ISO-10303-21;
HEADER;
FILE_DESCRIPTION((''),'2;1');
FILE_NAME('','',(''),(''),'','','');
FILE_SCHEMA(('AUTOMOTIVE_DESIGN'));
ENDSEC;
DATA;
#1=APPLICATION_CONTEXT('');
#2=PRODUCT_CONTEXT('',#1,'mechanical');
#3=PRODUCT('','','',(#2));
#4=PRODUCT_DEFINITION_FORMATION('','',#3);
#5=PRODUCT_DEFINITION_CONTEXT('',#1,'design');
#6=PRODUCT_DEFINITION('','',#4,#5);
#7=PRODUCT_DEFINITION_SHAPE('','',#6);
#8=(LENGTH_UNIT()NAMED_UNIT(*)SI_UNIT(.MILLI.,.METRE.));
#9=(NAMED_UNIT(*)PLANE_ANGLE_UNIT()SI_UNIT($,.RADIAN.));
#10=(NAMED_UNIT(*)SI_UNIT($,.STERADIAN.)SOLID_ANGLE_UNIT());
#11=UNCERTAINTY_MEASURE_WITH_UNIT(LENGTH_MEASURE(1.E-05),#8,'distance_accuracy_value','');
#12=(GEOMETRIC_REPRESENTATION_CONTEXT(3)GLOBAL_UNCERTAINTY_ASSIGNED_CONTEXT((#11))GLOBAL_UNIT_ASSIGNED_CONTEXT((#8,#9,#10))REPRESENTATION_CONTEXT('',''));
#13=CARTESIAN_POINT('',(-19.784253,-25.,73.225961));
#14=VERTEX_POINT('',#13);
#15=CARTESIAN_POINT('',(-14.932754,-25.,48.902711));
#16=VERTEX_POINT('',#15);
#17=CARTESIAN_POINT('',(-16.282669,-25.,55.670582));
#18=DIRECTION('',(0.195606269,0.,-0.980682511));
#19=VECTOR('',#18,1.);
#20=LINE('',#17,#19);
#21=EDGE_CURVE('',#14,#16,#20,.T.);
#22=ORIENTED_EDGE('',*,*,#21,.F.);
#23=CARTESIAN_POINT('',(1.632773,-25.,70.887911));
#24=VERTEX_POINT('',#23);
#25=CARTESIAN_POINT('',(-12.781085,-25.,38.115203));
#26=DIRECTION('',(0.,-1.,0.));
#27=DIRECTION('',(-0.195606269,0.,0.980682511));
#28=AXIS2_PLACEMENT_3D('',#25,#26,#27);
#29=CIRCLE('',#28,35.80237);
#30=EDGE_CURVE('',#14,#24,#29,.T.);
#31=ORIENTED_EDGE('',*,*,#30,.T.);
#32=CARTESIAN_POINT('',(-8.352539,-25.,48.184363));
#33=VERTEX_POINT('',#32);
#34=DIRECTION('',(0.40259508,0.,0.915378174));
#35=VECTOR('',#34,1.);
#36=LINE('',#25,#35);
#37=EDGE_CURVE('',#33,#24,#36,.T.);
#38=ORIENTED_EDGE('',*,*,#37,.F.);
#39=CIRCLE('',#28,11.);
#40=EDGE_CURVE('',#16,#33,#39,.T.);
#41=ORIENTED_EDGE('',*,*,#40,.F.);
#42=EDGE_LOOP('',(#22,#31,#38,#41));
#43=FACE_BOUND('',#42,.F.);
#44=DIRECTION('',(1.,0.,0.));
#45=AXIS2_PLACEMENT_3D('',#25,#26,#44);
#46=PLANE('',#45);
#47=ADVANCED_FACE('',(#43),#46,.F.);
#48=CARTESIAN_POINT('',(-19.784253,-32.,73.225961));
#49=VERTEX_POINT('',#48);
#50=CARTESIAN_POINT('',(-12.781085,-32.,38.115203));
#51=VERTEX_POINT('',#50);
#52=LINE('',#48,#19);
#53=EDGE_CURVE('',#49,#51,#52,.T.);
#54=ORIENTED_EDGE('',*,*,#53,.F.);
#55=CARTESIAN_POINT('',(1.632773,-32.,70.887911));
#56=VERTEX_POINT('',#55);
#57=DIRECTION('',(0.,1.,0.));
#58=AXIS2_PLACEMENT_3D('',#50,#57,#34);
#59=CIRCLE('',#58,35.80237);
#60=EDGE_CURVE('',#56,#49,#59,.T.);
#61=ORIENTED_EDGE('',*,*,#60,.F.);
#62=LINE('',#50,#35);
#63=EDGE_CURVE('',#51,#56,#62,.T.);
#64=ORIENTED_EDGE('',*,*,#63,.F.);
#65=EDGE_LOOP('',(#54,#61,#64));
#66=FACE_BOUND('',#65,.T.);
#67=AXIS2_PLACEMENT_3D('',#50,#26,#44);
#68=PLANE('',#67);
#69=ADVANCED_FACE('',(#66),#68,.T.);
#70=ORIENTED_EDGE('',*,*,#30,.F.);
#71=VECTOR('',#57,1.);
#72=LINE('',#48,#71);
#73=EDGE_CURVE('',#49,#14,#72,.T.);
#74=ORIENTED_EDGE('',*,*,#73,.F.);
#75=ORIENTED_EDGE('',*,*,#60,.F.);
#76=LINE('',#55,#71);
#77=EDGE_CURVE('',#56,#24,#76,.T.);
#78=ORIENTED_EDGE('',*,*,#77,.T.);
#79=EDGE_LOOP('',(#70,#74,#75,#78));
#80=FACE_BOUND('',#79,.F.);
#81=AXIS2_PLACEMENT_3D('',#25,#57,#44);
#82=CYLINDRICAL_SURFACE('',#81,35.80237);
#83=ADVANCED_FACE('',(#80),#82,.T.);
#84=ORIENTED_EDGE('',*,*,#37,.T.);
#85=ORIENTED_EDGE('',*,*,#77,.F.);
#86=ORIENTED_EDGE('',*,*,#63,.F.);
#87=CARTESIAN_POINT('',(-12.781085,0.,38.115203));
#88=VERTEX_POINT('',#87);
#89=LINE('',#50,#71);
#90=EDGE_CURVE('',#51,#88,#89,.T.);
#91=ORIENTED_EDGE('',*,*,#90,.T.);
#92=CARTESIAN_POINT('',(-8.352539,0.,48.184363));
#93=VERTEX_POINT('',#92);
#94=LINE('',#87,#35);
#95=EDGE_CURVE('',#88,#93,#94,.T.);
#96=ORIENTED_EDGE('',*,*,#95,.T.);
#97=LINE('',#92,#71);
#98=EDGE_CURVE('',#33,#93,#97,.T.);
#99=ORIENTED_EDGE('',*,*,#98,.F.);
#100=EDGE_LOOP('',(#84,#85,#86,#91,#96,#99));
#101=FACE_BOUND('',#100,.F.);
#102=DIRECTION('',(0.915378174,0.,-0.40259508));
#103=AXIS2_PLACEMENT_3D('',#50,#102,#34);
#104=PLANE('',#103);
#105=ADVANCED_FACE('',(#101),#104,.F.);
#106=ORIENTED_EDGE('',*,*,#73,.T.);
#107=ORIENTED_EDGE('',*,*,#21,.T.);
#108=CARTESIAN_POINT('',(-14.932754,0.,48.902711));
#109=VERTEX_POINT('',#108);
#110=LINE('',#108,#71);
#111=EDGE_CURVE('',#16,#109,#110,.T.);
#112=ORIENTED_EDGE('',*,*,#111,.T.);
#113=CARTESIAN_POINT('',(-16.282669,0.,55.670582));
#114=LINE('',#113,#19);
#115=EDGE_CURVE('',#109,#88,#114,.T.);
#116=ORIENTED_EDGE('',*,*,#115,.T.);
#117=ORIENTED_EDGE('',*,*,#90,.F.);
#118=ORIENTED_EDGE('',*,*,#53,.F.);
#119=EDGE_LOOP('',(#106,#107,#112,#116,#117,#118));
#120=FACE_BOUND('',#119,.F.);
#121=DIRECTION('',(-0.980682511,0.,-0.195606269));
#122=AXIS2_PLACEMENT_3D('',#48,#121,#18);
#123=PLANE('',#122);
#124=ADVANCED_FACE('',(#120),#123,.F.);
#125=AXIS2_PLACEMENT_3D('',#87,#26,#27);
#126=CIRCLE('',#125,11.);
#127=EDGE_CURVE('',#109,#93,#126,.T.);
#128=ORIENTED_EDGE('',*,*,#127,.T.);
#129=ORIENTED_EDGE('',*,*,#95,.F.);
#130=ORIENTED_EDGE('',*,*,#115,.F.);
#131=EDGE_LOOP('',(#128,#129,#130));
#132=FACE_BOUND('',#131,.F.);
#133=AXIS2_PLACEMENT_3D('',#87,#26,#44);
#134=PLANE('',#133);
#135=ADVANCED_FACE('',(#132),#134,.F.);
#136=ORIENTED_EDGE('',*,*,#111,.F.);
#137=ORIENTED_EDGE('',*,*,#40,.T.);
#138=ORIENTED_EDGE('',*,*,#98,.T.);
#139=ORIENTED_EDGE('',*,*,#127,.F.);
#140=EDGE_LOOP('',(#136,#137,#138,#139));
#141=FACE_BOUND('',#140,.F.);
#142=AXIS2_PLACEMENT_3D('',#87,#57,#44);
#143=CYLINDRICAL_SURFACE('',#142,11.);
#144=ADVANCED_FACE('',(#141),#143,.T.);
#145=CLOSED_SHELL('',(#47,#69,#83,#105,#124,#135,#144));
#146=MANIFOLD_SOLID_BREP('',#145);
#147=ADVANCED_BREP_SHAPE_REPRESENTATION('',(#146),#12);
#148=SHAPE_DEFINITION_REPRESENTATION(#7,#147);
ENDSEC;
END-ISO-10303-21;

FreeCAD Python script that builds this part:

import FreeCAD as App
import Part
import Sketcher

V = App.Vector
Q = App.Units.Quantity

doc = App.newDocument("Part")
params = doc.addObject("Spreadsheet::Sheet", "Params")
for row, (alias, value) in enumerate([
    ("sketch1_diameter", "22 mm"),
    ("pad1_length", "25 mm"),
    ("pad2_length", "7 mm"),
], start=1):
    params.set(f"A{row}", alias)
    params.set(f"B{row}", "=" + value)
    params.setAlias(f"B{row}", alias)

body = doc.addObject("PartDesign::Body", "Body")

# Sketch on XZ plane
sketch1 = body.newObject("Sketcher::SketchObject", "Sketch")
sketch1.AttachmentSupport = (doc.getObject("XZ_Plane"), [""])
sketch1.MapMode = "FlatFace"
sketch1.addGeometry(Part.Circle(V(-12.781085, 38.115203, 0), V(0, 0, 1), 11), False)
sketch1.addConstraint([
    Sketcher.Constraint("Diameter", 0, Q("22 mm")),
    Sketcher.Constraint("DistanceX", 0, 3, -1, 1, Q("12.781085 mm")),
    Sketcher.Constraint("DistanceY", -1, 1, 0, 3, Q("38.115203 mm")),
])
sketch1.setExpression("Constraints[0]", "Params.sketch1_diameter")
pad1 = body.newObject("PartDesign::Pad", "Pad")
pad1.Profile = sketch1
pad1.setExpression("Length", "Params.pad1_length")

# Sketch on XZ plane
sketch2 = body.newObject("Sketcher::SketchObject", "Sketch001")
sketch2.AttachmentSupport = (doc.getObject("XZ_Plane"), [""])
sketch2.MapMode = "FlatFace"
sketch2.AttachmentOffset = App.Placement(V(0, 0, 25), App.Rotation())
sketch2.addGeometry(Part.Circle(V(-12.781085, 38.115203, 0), V(0, 0, 1), 35.80237), False)
sketch2.addConstraint([
    Sketcher.Constraint("Diameter", 0, Q("71.60474 mm")),
    Sketcher.Constraint("DistanceX", 0, 3, -1, 1, Q("12.781085 mm")),
    Sketcher.Constraint("DistanceY", -1, 1, 0, 3, Q("38.115203 mm")),
])
pad2 = body.newObject("PartDesign::Pad", "Pad001")
pad2.Profile = sketch2
pad2.setExpression("Length", "Params.pad2_length")

# Sketch on XZ plane
sketch3 = body.newObject("Sketcher::SketchObject", "Sketch002")
sketch3.AttachmentSupport = (doc.getObject("XZ_Plane"), [""])
sketch3.MapMode = "FlatFace"
sketch3.AttachmentOffset = App.Placement(V(0, 0, 32), App.Rotation())
sketch3.addGeometry([
    Part.LineSegment(V(-7.421601, 82.684956, 0), V(-19.784253, 73.225961, 0)),
    Part.LineSegment(V(-19.784253, 73.225961, 0), V(-12.781085, 38.115203, 0)),
    Part.LineSegment(V(-12.781085, 38.115203, 0), V(1.632773, 70.887911, 0)),
    Part.LineSegment(V(1.632773, 70.887911, 0), V(-7.421601, 82.684956, 0)),
], False)
sketch3.addConstraint([
    Sketcher.Constraint("Coincident", 0, 2, 1, 1),
    Sketcher.Constraint("Coincident", 1, 2, 2, 1),
    Sketcher.Constraint("Coincident", 2, 2, 3, 1),
    Sketcher.Constraint("Coincident", 3, 2, 0, 1),
    Sketcher.Constraint("Equal", 1, 2),
    Sketcher.Constraint("DistanceX", 3, 2, -1, 1, Q("7.421601 mm")),
    Sketcher.Constraint("Distance", 1, Q("35.80237 mm")),
    Sketcher.Constraint("Distance", 3, Q("14.871179 mm")),
    Sketcher.Constraint("DistanceY", -1, 1, 0, 2, Q("73.225961 mm")),
    Sketcher.Constraint("DistanceY", -1, 1, 2, 2, Q("70.887911 mm")),
    Sketcher.Constraint("DistanceX", 0, 2, 1, 2, Q("7.003168 mm")),
    Sketcher.Constraint("Distance", 0, Q("15.566238 mm")),
])
pocket1 = body.newObject("PartDesign::Pocket", "Pocket")
pocket1.Profile = sketch3
pocket1.Type = "ThroughAll"

doc.recompute()
